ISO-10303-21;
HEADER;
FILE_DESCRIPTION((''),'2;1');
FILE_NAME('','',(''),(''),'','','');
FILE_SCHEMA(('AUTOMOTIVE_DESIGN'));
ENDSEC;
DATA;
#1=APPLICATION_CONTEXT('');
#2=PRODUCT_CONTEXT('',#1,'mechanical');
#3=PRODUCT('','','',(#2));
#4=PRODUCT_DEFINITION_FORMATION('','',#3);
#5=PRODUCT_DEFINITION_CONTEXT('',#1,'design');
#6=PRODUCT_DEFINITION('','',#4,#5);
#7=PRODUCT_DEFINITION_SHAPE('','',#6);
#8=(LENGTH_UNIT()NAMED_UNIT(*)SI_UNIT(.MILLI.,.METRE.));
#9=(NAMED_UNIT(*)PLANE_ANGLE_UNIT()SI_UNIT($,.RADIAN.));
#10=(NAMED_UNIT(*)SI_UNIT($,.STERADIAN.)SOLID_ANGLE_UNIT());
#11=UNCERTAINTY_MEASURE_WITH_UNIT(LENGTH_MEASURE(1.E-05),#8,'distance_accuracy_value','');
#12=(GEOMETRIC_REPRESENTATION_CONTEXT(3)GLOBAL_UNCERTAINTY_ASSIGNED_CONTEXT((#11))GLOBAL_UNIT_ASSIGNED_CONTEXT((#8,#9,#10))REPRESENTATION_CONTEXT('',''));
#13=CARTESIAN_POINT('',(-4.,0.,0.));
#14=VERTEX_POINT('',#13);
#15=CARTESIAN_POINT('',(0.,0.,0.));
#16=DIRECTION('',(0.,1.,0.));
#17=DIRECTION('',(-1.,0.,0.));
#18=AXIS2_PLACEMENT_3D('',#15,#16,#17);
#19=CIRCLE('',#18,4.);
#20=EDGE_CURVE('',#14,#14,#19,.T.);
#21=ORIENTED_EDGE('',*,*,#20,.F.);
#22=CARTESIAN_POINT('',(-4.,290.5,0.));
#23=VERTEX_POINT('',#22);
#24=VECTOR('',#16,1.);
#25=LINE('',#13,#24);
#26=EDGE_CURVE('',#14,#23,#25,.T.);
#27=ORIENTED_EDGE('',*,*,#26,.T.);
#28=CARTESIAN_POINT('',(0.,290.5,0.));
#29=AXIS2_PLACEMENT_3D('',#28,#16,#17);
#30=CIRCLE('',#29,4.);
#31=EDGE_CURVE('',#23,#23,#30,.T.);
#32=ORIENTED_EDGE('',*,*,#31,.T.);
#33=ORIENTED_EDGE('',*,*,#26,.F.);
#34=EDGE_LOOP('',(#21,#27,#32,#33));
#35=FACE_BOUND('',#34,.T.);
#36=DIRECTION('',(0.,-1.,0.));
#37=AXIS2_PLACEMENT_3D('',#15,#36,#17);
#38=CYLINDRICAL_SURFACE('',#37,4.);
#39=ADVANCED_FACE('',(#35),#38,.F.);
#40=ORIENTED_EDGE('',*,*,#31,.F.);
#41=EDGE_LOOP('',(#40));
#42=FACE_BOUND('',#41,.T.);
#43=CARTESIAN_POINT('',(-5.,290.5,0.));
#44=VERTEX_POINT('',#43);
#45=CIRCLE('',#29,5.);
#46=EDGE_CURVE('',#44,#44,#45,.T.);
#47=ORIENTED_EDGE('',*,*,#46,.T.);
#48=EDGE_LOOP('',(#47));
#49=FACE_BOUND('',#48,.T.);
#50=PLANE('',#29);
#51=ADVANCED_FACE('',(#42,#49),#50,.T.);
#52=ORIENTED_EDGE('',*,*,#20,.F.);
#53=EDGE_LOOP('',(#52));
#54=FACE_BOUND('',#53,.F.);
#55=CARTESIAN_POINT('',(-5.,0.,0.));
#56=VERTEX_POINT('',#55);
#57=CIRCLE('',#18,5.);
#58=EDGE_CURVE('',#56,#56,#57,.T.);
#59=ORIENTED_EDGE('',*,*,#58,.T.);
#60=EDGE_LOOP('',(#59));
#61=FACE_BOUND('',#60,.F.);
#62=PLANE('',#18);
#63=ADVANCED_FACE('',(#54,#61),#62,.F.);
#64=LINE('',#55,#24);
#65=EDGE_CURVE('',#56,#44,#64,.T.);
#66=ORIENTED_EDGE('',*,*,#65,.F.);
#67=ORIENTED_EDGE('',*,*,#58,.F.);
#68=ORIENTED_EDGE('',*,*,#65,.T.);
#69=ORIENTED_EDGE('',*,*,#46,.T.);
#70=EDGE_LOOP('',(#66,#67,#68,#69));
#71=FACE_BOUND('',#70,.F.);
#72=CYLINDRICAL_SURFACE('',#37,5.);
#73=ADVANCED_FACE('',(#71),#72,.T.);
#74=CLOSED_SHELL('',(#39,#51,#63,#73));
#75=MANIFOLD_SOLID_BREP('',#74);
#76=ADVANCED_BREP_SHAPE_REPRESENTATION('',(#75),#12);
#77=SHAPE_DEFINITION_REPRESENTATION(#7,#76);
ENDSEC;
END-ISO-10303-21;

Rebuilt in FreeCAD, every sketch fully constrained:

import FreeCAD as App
import Part
import Sketcher
from FreeCAD import Vector

doc = App.newDocument("Part")
body = doc.addObject("PartDesign::Body", "Body")

sketch1 = body.newObject("Sketcher::SketchObject", "Sketch")
sketch1.AttachmentSupport = (doc.getObject("XZ_Plane"), [""])
sketch1.MapMode = "FlatFace"
sketch1.addGeometry([
    Part.Circle(Vector(0, 0, 0), Vector(0, 0, 1), 5),
    Part.Circle(Vector(0, 0, 0), Vector(0, 0, 1), 4),
], False)
sketch1.addConstraint([
    Sketcher.Constraint("Coincident", 0, 3, -1, 1),
    Sketcher.Constraint("Coincident", 1, 3, -1, 1),
    Sketcher.Constraint("Diameter", 0, 10.0),
    Sketcher.Constraint("Diameter", 1, 8.0),
])
pad1 = body.newObject("PartDesign::Pad", "Pad")
pad1.Profile = sketch1
pad1.Length = 290.5
pad1.Reversed = True

doc.recompute()
